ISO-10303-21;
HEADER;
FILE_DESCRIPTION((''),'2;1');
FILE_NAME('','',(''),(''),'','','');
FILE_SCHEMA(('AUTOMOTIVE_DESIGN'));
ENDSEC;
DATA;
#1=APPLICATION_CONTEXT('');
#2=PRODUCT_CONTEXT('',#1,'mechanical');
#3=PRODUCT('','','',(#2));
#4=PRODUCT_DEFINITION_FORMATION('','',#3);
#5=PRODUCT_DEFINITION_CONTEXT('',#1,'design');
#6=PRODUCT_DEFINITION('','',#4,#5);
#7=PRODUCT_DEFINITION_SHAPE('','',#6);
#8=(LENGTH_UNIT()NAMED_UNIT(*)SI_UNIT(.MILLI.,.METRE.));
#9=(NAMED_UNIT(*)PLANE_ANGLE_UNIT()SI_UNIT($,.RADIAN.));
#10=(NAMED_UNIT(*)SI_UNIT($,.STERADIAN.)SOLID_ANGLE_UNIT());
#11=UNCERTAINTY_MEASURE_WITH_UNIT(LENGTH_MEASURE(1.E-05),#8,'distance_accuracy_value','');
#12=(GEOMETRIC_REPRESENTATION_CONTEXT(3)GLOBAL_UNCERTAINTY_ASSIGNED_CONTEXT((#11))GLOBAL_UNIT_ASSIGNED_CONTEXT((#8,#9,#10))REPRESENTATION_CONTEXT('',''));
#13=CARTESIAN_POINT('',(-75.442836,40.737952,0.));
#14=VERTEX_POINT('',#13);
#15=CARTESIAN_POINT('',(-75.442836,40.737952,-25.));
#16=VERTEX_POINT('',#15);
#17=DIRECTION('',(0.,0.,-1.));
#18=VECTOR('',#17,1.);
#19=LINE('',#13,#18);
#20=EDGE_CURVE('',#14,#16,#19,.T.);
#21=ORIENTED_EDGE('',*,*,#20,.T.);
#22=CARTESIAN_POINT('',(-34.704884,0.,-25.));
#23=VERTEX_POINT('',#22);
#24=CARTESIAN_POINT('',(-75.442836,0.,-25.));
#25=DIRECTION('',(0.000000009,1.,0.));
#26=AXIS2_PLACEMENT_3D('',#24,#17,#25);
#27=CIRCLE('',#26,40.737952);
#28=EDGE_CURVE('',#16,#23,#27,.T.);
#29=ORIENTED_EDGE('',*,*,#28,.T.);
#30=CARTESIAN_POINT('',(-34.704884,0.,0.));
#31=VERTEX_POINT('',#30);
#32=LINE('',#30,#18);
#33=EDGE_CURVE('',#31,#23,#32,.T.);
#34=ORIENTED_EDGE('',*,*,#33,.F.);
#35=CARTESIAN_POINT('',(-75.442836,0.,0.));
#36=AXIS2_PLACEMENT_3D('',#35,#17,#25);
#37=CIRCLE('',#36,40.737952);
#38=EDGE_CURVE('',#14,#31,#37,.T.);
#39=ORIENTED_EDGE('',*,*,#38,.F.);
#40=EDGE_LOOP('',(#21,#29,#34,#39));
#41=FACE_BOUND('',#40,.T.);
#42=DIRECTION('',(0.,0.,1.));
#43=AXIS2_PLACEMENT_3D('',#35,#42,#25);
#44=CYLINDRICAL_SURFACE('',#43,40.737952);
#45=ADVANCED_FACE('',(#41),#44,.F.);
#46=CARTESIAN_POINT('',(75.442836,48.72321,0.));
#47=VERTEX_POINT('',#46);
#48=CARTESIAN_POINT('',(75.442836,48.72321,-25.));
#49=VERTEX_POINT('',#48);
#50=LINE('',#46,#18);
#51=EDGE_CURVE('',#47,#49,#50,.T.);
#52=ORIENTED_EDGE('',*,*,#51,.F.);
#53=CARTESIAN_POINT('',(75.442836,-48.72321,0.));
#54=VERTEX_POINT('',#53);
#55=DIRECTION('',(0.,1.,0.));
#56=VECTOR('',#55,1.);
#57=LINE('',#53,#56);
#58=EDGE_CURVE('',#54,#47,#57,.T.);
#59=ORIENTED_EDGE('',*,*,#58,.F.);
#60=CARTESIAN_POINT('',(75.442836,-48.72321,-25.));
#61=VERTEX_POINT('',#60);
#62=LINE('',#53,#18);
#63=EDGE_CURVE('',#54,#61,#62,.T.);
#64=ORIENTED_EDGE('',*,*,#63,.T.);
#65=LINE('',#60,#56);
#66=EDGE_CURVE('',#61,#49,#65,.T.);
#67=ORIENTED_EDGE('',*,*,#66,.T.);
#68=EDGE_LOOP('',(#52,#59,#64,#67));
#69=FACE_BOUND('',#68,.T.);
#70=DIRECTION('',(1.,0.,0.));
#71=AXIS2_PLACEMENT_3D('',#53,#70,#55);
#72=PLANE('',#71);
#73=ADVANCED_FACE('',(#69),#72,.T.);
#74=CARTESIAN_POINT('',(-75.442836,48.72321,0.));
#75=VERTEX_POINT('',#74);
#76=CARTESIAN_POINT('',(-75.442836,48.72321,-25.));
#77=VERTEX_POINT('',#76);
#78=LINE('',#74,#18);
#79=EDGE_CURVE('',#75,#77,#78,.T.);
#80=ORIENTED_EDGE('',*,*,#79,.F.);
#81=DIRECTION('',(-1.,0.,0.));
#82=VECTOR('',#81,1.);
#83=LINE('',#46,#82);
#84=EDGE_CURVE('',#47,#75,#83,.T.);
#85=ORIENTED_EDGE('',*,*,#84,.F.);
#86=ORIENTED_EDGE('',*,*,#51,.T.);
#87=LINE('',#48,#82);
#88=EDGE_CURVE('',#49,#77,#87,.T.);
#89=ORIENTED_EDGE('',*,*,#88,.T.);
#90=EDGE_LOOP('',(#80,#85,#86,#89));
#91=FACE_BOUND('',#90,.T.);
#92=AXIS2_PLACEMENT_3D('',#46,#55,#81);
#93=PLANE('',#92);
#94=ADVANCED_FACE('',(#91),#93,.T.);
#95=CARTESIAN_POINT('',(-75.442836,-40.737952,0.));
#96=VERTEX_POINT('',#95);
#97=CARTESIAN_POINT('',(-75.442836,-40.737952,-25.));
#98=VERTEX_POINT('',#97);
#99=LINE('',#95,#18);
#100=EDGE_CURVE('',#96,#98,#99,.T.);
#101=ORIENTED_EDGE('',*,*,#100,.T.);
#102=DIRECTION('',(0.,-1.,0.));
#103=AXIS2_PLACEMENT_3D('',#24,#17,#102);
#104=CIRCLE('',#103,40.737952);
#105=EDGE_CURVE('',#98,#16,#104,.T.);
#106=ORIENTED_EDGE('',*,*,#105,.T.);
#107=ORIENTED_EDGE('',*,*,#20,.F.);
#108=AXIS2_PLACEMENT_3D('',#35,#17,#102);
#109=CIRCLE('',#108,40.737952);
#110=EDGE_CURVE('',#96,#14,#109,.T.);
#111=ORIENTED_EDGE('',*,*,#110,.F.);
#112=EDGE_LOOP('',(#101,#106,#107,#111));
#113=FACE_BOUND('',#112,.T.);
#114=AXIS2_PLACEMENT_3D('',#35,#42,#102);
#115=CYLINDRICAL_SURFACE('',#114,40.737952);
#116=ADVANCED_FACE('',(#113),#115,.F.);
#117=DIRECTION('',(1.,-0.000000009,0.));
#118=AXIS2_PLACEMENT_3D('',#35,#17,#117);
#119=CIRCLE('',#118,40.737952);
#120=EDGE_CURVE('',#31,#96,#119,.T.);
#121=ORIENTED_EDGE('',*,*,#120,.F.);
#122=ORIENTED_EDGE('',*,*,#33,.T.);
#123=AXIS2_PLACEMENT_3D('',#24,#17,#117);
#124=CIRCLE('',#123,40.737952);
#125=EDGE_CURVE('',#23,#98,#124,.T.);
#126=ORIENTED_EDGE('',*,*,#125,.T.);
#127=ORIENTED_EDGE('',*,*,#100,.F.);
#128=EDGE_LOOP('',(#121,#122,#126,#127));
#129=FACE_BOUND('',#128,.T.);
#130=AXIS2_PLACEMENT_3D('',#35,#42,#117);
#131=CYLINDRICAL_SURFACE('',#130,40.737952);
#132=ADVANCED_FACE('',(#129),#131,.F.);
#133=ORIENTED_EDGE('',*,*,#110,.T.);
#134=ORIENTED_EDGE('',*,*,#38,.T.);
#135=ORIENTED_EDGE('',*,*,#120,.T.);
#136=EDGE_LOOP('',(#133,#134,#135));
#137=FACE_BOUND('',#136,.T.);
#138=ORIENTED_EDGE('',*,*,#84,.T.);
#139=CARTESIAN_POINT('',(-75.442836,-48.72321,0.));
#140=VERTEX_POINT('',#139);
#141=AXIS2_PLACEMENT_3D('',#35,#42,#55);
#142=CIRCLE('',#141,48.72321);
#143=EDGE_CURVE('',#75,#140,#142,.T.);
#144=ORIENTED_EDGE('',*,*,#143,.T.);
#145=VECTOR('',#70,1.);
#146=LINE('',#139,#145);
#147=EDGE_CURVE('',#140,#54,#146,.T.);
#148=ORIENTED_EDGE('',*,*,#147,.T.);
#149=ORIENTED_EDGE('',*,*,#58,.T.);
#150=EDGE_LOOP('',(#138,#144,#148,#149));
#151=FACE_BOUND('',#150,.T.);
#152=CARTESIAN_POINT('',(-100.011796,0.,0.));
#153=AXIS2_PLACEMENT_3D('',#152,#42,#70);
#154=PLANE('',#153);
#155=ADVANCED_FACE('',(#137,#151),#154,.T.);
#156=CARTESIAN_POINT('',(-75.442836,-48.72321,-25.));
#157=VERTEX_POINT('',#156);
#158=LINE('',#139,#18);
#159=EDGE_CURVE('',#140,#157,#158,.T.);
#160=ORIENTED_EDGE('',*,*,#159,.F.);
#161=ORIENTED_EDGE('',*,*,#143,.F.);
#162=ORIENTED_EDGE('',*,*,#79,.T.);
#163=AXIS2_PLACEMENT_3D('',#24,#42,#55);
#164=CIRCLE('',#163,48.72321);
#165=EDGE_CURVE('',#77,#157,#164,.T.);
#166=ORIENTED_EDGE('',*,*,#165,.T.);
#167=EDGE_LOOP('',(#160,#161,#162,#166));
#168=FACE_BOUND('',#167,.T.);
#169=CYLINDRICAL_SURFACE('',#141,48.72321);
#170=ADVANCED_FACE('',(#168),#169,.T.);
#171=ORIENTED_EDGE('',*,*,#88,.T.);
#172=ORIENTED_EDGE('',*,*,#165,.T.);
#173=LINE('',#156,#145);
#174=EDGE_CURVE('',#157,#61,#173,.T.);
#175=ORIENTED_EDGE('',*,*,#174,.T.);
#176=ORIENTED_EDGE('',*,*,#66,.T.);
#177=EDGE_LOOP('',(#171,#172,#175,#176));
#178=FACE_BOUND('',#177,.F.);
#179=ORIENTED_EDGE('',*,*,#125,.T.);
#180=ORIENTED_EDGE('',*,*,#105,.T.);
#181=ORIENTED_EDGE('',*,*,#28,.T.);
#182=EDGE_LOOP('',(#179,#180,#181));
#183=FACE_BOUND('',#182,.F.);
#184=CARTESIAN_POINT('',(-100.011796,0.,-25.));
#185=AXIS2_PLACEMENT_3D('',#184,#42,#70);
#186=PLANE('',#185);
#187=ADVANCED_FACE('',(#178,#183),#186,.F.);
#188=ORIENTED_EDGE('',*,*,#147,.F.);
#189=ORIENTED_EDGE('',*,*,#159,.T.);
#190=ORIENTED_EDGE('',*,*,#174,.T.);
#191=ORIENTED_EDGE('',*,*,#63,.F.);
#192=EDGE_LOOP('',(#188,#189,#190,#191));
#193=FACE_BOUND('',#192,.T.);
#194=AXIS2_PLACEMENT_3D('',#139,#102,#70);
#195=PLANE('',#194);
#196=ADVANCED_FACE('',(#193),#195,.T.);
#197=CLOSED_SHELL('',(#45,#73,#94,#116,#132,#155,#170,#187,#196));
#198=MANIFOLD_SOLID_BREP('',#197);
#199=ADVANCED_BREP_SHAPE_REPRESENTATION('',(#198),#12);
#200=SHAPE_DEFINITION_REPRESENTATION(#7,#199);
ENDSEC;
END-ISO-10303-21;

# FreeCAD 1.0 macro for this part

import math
import FreeCAD as App
import Part
import Sketcher

V = App.Vector

doc = App.newDocument("Part")
body = doc.addObject("PartDesign::Body", "Body")

sketch1 = body.newObject("Sketcher::SketchObject", "Sketch")
sketch1.AttachmentSupport = (doc.getObject("XY_Plane"), [""])
sketch1.MapMode = "FlatFace"
sketch1.addGeometry([
    Part.ArcOfCircle(Part.Circle(V(-75.442836, 0, 0), V(0, 0, 1), 48.72321), math.radians(90), math.radians(270)),
    Part.LineSegment(V(-75.442836, -48.72321, 0), V(75.442836, -48.72321, 0)),
    Part.LineSegment(V(75.442836, -48.72321, 0), V(75.442836, 48.72321, 0)),
    Part.LineSegment(V(75.442836, 48.72321, 0), V(-75.442836, 48.72321, 0)),
    Part.ArcOfCircle(Part.Circle(V(-75.442836, 0, 0), V(0, 0, 1), 40.737952), math.radians(90), math.radians(270)),
    Part.ArcOfCircle(Part.Circle(V(-75.442836, 0, 0), V(0, 0, 1), 40.737952), math.radians(0.000001), math.radians(89.999999)),
    Part.ArcOfCircle(Part.Circle(V(-75.442836, 0, 0), V(0, 0, 1), 40.737952), math.radians(-89.999999), math.radians(-0.000001)),
], False)
sketch1.addConstraint([
    Sketcher.Constraint("Tangent", 0, 2, 1, 1),
    Sketcher.Constraint("Coincident", 1, 2, 2, 1),
    Sketcher.Constraint("Coincident", 2, 2, 3, 1),
    Sketcher.Constraint("Tangent", 3, 2, 0, 1),
    Sketcher.Constraint("Tangent", 4, 1, 5, 2),
    Sketcher.Constraint("Tangent", 5, 1, 6, 2),
    Sketcher.Constraint("Tangent", 6, 1, 4, 2),
    Sketcher.Constraint("Horizontal", 1),
    Sketcher.Constraint("Vertical", 2),
    Sketcher.Constraint("Horizontal", 3),
    Sketcher.Constraint("Coincident", 4, 3, 0, 3),
    Sketcher.Constraint("Symmetric", 0, 2, 2, 2, -1, 1),
    Sketcher.Constraint("PointOnObject", 5, 1, -1),
    Sketcher.Constraint("Vertical", 3, 2, 4, 1),
    Sketcher.Constraint("Vertical", 4, 1, 6, 1),
    Sketcher.Constraint("Radius", 0, 48.72321),
    Sketcher.Constraint("Radius", 4, 40.737952),
    Sketcher.Constraint("DistanceX", 1, 1, 1, 2, 150.885672),
])
pad1 = body.newObject("PartDesign::Pad", "Pad")
pad1.Profile = sketch1
pad1.Length = 25
pad1.Reversed = True

doc.recompute()
